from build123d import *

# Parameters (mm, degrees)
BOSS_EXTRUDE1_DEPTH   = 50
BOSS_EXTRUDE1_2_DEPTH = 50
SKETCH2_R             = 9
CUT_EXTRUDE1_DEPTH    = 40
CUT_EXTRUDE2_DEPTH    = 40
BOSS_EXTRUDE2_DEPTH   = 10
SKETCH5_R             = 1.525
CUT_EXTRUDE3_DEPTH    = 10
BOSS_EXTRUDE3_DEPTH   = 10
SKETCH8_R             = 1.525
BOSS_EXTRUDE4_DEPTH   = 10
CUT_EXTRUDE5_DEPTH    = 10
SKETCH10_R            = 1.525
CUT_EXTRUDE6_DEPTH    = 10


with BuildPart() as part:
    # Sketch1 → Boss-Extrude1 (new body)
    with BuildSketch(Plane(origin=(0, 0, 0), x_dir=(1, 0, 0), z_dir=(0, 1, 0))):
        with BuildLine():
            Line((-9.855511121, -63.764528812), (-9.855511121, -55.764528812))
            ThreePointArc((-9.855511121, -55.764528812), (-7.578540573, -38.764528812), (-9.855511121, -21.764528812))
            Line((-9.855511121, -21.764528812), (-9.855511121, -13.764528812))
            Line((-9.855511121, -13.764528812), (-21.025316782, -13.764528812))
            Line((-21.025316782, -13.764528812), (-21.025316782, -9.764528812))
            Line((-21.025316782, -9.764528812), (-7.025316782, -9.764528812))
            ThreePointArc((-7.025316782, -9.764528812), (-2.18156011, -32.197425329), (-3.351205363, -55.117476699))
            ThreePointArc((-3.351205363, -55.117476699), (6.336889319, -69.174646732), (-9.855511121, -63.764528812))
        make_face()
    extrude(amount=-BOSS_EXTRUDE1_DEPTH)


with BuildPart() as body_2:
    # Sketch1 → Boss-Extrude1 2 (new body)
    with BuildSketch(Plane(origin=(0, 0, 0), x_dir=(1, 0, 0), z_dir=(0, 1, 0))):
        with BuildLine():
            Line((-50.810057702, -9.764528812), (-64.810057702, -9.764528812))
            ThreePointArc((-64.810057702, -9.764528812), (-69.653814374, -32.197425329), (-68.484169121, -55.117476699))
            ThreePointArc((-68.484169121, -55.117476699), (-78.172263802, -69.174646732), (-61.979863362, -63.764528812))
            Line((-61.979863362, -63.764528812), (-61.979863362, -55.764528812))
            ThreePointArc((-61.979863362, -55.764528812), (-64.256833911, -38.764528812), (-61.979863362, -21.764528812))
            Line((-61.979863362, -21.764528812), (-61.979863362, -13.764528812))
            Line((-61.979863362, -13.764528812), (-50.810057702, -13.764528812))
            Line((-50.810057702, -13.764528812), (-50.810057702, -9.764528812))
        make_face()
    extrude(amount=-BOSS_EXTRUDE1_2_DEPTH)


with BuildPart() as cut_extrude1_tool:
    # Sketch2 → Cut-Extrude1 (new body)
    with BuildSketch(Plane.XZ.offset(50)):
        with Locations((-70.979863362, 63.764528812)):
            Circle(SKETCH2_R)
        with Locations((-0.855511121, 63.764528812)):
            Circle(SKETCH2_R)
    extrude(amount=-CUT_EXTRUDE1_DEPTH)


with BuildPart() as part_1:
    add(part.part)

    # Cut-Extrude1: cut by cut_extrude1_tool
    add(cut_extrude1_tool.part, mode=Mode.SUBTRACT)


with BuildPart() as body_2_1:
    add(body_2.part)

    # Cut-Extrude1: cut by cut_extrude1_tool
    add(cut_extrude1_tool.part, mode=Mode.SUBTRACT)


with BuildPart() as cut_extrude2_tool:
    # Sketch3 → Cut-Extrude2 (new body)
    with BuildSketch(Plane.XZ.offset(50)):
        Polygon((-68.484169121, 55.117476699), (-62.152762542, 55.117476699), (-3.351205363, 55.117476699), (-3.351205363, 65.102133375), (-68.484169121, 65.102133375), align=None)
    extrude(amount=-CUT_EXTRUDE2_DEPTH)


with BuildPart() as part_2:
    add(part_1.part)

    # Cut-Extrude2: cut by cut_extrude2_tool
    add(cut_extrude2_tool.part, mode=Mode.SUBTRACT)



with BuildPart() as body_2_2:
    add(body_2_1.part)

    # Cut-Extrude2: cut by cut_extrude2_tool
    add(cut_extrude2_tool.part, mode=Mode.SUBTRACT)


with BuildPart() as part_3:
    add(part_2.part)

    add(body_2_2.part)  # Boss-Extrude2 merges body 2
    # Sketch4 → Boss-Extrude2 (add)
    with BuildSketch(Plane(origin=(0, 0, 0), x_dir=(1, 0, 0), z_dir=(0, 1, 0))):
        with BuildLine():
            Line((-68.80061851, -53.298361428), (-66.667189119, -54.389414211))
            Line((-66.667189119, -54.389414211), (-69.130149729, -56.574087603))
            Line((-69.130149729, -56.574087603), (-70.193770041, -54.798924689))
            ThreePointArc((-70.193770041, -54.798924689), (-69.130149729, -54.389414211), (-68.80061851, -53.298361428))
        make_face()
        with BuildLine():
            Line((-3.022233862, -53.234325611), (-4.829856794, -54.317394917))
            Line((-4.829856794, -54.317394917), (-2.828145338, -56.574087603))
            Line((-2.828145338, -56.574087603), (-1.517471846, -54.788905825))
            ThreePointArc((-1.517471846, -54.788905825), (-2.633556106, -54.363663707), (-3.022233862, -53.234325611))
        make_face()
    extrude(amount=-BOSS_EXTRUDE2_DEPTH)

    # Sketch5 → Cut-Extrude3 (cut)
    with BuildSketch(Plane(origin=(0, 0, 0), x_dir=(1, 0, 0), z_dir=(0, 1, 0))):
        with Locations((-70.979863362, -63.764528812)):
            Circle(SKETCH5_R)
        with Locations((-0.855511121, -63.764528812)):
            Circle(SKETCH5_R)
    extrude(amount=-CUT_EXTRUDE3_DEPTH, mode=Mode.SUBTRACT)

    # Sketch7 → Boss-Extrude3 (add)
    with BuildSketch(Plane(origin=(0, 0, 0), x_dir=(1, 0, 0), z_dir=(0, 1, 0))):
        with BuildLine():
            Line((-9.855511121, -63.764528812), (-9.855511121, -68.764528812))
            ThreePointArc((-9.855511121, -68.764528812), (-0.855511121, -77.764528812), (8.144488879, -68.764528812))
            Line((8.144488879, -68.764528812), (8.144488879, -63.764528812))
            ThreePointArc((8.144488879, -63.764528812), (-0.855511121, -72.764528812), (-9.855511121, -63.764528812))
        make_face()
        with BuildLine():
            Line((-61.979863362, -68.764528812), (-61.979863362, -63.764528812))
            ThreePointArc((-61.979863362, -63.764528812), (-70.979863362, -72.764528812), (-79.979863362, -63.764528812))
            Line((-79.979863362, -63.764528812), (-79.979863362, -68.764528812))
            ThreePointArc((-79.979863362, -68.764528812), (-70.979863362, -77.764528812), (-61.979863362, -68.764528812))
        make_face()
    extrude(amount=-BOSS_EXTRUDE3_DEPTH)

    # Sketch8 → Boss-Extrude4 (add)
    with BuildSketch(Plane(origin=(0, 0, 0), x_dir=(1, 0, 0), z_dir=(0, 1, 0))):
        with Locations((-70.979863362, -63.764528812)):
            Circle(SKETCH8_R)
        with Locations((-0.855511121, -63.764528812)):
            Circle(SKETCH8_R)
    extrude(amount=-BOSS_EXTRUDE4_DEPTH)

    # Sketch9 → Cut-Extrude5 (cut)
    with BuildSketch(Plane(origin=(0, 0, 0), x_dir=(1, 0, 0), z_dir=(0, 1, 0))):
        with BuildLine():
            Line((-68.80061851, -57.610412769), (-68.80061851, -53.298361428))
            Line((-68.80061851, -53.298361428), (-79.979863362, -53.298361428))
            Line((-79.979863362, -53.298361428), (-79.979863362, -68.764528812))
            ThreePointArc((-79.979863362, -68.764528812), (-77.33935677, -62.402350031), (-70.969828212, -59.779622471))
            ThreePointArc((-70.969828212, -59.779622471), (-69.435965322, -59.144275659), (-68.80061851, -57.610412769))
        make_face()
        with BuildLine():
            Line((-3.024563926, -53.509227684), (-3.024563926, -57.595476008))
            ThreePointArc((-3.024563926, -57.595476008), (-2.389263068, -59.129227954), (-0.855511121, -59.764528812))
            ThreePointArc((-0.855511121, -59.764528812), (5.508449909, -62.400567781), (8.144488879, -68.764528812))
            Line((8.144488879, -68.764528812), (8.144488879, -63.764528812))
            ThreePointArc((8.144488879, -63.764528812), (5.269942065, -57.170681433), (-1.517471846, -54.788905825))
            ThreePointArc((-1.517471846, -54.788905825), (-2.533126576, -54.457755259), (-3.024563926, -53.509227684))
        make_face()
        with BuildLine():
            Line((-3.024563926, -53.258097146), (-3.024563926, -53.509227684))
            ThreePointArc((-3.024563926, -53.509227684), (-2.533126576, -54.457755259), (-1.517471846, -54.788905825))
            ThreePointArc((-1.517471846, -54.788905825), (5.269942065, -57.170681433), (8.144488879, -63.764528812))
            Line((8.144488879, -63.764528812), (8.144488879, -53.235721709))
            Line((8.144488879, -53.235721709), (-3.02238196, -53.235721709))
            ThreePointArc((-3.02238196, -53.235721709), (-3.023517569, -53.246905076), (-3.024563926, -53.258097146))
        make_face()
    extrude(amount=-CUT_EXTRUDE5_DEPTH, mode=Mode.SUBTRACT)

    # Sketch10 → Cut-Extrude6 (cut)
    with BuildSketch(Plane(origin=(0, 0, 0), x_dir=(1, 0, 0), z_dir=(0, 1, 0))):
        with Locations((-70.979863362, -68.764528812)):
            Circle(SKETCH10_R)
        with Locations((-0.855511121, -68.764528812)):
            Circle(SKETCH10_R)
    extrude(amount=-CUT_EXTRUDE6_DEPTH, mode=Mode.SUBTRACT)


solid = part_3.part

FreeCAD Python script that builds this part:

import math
import FreeCAD as App
import Part
import Sketcher


def add_polygon(sketch, points):
    """Adds a closed chain of lines whose ends are joined by coincident constraints."""
    first, n = sketch.GeometryCount, len(points)
    for a, b in zip(points, points[1:] + points[:1]):
        sketch.addGeometry(Part.LineSegment(App.Vector(*a, 0), App.Vector(*b, 0)), False)
    for i in range(n):
        sketch.addConstraint(Sketcher.Constraint("Coincident", first + i, 2, first + (i + 1) % n, 1))

doc = App.newDocument("Part")
body = doc.addObject("PartDesign::Body", "Body")

# Sketch on XZ plane
sketch1 = body.newObject("Sketcher::SketchObject", "Sketch")
sketch1.AttachmentSupport = (doc.getObject("XZ_Plane"), [""])
sketch1.MapMode = "FlatFace"
sketch1.addGeometry([
    Part.LineSegment(App.Vector(-9.9, 55.8, 0), App.Vector(-9.9, 63.8, 0)),  # 0
    Part.ArcOfCircle(Part.Circle(App.Vector(-0.9, 63.8, 0), App.Vector(0, 0, 1), 9), math.radians(-106), math.radians(180)),  # 1
    Part.ArcOfCircle(Part.Circle(App.Vector(-89.2, 39.2, 0), App.Vector(0, 0, 1), 87.3), math.radians(-20), math.radians(10)),  # 2
    Part.LineSegment(App.Vector(-7, 9.8, 0), App.Vector(-21, 9.8, 0)),  # 3
    Part.LineSegment(App.Vector(-21, 9.8, 0), App.Vector(-21, 13.8, 0)),  # 4
    Part.LineSegment(App.Vector(-21, 13.8, 0), App.Vector(-9.9, 13.8, 0)),  # 5
    Part.LineSegment(App.Vector(-9.9, 13.8, 0), App.Vector(-9.9, 21.8, 0)),  # 6
    Part.ArcOfCircle(Part.Circle(App.Vector(-72.2, 38.8, 0), App.Vector(0, 0, 1), 64.6), math.radians(-15), math.radians(15)),  # 7
], False)
sketch1.addConstraint([
    Sketcher.Constraint("Tangent", 0, 2, 1, 2),
    Sketcher.Constraint("Coincident", 1, 1, 2, 2),
    Sketcher.Constraint("Coincident", 2, 1, 3, 1),
    Sketcher.Constraint("Coincident", 3, 2, 4, 1),
    Sketcher.Constraint("Coincident", 4, 2, 5, 1),
    Sketcher.Constraint("Coincident", 5, 2, 6, 1),
    Sketcher.Constraint("Coincident", 6, 2, 7, 1),
    Sketcher.Constraint("Coincident", 7, 2, 0, 1),
    Sketcher.Constraint("Vertical", 0),
    Sketcher.Constraint("Horizontal", 3),
    Sketcher.Constraint("Vertical", 4),
    Sketcher.Constraint("Horizontal", 5),
    Sketcher.Constraint("Vertical", 6),
    Sketcher.Constraint("Vertical", 0, 2, 5, 2),
    Sketcher.Constraint("Equal", 0, 6),
    Sketcher.Constraint("Radius", 1, 9.0),
    Sketcher.Constraint("Radius", 7, 64.6),
    Sketcher.Constraint("DistanceX", 3, 2, 3, 1, 14.0),
    Sketcher.Constraint("DistanceY", 0, 1, 0, 2, 8.0),
    Sketcher.Constraint("DistanceY", 4, 1, 4, 2, 4.0),
    Sketcher.Constraint("DistanceY", 7, 3, 1, 3, 25.0),
    Sketcher.Constraint("Radius", 2, 87.30116),
    Sketcher.Constraint("DistanceX", 5, 1, 5, 2, 11.169806),
    Sketcher.Constraint("DistanceX", 1, 3, -1, 1, 0.855511),
    Sketcher.Constraint("DistanceY", -1, 1, 1, 3, 63.764529),
    Sketcher.Constraint("DistanceX", 2, 3, -1, 1, 89.19765),
])
pad1 = body.newObject("PartDesign::Pad", "Pad")
pad1.Profile = sketch1
pad1.Length = 50
body2 = doc.addObject("PartDesign::Body", "Body001")

# Sketch on XZ plane
sketch2 = body2.newObject("Sketcher::SketchObject", "Sketch001")
sketch2.AttachmentSupport = (doc.getObject("XZ_Plane001"), [""])
sketch2.MapMode = "FlatFace"
sketch2.addGeometry([
    Part.LineSegment(App.Vector(-50.8, 9.8, 0), App.Vector(-64.8, 9.8, 0)),  # 0
    Part.ArcOfCircle(Part.Circle(App.Vector(17.4, 39.2, 0), App.Vector(0, 0, 1), 87.3), math.radians(170), math.radians(200)),  # 1
    Part.ArcOfCircle(Part.Circle(App.Vector(-71, 63.8, 0), App.Vector(0, 0, 1), 9), math.radians(0), math.radians(286)),  # 2
    Part.LineSegment(App.Vector(-62, 63.8, 0), App.Vector(-62, 55.8, 0)),  # 3
    Part.ArcOfCircle(Part.Circle(App.Vector(0.3, 38.8, 0), App.Vector(0, 0, 1), 64.6), math.radians(165), math.radians(195)),  # 4
    Part.LineSegment(App.Vector(-62, 21.8, 0), App.Vector(-62, 13.8, 0)),  # 5
    Part.LineSegment(App.Vector(-62, 13.8, 0), App.Vector(-50.8, 13.8, 0)),  # 6
    Part.LineSegment(App.Vector(-50.8, 13.8, 0), App.Vector(-50.8, 9.8, 0)),  # 7
], False)
sketch2.addConstraint([
    Sketcher.Constraint("Coincident", 0, 2, 1, 2),
    Sketcher.Constraint("Coincident", 1, 1, 2, 2),
    Sketcher.Constraint("Tangent", 2, 1, 3, 1),
    Sketcher.Constraint("Coincident", 3, 2, 4, 1),
    Sketcher.Constraint("Coincident", 4, 2, 5, 1),
    Sketcher.Constraint("Coincident", 5, 2, 6, 1),
    Sketcher.Constraint("Coincident", 6, 2, 7, 1),
    Sketcher.Constraint("Coincident", 7, 2, 0, 1),
    Sketcher.Constraint("Horizontal", 0),
    Sketcher.Constraint("Vertical", 3),
    Sketcher.Constraint("Vertical", 5),
    Sketcher.Constraint("Horizontal", 6),
    Sketcher.Constraint("Vertical", 7),
    Sketcher.Constraint("Vertical", 3, 2, 4, 2),
    Sketcher.Constraint("Equal", 3, 5),
    Sketcher.Constraint("Radius", 2, 9.0),
    Sketcher.Constraint("Radius", 4, 64.6),
    Sketcher.Constraint("DistanceX", 0, 2, 0, 1, 14.0),
    Sketcher.Constraint("DistanceY", 3, 2, 3, 1, 8.0),
    Sketcher.Constraint("DistanceY", 7, 2, 7, 1, 4.0),
    Sketcher.Constraint("DistanceY", 4, 3, 2, 3, 25.0),
    Sketcher.Constraint("Radius", 1, 87.30116),
    Sketcher.Constraint("DistanceX", 6, 1, 6, 2, 11.169806),
    Sketcher.Constraint("DistanceY", -1, 1, 1, 3, 39.246731),
    Sketcher.Constraint("DistanceY", -1, 1, 2, 3, 63.764529),
    Sketcher.Constraint("DistanceX", 1, 1, -1, 1, 68.484169),
])
pad2 = body2.newObject("PartDesign::Pad", "Pad001")
pad2.Profile = sketch2
pad2.Length = 50
body3 = doc.addObject("PartDesign::Body", "Body002")
body3.AllowCompound = True

# Sketch on XZ plane
sketch3 = body3.newObject("Sketcher::SketchObject", "Sketch002")
sketch3.AttachmentSupport = (doc.getObject("XZ_Plane002"), [""])
sketch3.MapMode = "FlatFace"
sketch3.AttachmentOffset = App.Placement(App.Vector(0, 0, 50), App.Rotation())
sketch3.addGeometry([
    Part.Circle(App.Vector(-71, 64, 0), App.Vector(0, 0, 1), 9),
    Part.Circle(App.Vector(-1, 64, 0), App.Vector(0, 0, 1), 9),
], False)
sketch3.addConstraint([
    Sketcher.Constraint("Equal", 0, 1),
    Sketcher.Constraint("Horizontal", 0, 3, 1, 3),
    Sketcher.Constraint("Diameter", 0, 18.0),
    Sketcher.Constraint("DistanceY", -1, 1, 0, 3, 63.764529),
    Sketcher.Constraint("DistanceX", 1, 3, -1, 1, 0.855511),
    Sketcher.Constraint("DistanceX", 0, 3, -1, 1, 70.979863),
])
pad3 = body3.newObject("PartDesign::Pad", "Pad002")
pad3.Profile = sketch3
pad3.Length = 40
pad3.Reversed = True
doc.recompute()

body4 = doc.addObject("PartDesign::Body", "Body003")
body4.BaseFeature = body3
boolean = body.newObject("PartDesign::Boolean", "Boolean")
boolean.Type = "Cut"
boolean.addObjects([body4])
doc.recompute()

boolean2 = body2.newObject("PartDesign::Boolean", "Boolean001")
boolean2.Type = "Cut"
boolean2.addObjects([body3])
body5 = doc.addObject("PartDesign::Body", "Body004")

# Sketch on XZ plane
sketch4 = body5.newObject("Sketcher::SketchObject", "Sketch003")
sketch4.AttachmentSupport = (doc.getObject("XZ_Plane004"), [""])
sketch4.MapMode = "FlatFace"
sketch4.AttachmentOffset = App.Placement(App.Vector(0, 0, 50), App.Rotation())
add_polygon(sketch4, [(-68, 55), (-3, 55), (-3, 65), (-68, 65)])  # lines 0-3
sketch4.addConstraint([
    Sketcher.Constraint("Horizontal", 0),
    Sketcher.Constraint("Vertical", 1),
    Sketcher.Constraint("Horizontal", 2),
    Sketcher.Constraint("Vertical", 3),
    Sketcher.Constraint("DistanceX", 0, 1, 0, 2, 65.132964),
    Sketcher.Constraint("DistanceY", 1, 1, 1, 2, 9.984657),
    Sketcher.Constraint("DistanceX", 2, 2, -1, 1, 68.484169),
    Sketcher.Constraint("DistanceY", -1, 1, 0, 2, 55.117477),
])
pad4 = body5.newObject("PartDesign::Pad", "Pad003")
pad4.Profile = sketch4
pad4.Length = 40
pad4.Reversed = True
doc.recompute()

body6 = doc.addObject("PartDesign::Body", "Body005")
body6.BaseFeature = body5
boolean3 = body.newObject("PartDesign::Boolean", "Boolean002")
boolean3.Type = "Cut"
boolean3.addObjects([body6])
doc.recompute()

boolean4 = body2.newObject("PartDesign::Boolean", "Boolean003")
boolean4.Type = "Cut"
boolean4.addObjects([body5])
body.AllowCompound = True
doc.recompute()

boolean5 = body.newObject("PartDesign::Boolean", "Boolean004")
boolean5.Type = "Fuse"
boolean5.addObjects([body2])

# Sketch on XZ plane
sketch5 = body.newObject("Sketcher::SketchObject", "Sketch004")
sketch5.AttachmentSupport = (doc.getObject("XZ_Plane"), [""])
sketch5.MapMode = "FlatFace"
sketch5.addGeometry([
    Part.LineSegment(App.Vector(-66.7, 54.4, 0), App.Vector(-68.8, 53.3, 0)),  # 0
    Part.ArcOfCircle(Part.Circle(App.Vector(-70.1, 53.5, 0), App.Vector(0, 0, 1), 1.3), math.radians(-9), math.radians(95)),  # 1
    Part.LineSegment(App.Vector(-70.2, 54.8, 0), App.Vector(-69.1, 56.6, 0)),  # 2
    Part.LineSegment(App.Vector(-69.1, 56.6, 0), App.Vector(-66.7, 54.4, 0)),  # 3
    Part.LineSegment(App.Vector(-3, 53.2, 0), App.Vector(-4.8, 54.3, 0)),  # 4
    Part.LineSegment(App.Vector(-4.8, 54.3, 0), App.Vector(-2.8, 56.6, 0)),  # 5
    Part.LineSegment(App.Vector(-2.8, 56.6, 0), App.Vector(-1.5, 54.8, 0)),  # 6
    Part.ArcOfCircle(Part.Circle(App.Vector(-1.6, 53.4, 0), App.Vector(0, 0, 1), 1.4), math.radians(86), math.radians(186)),  # 7
], False)
sketch5.addConstraint([
    Sketcher.Constraint("Coincident", 0, 2, 1, 1),
    Sketcher.Constraint("Coincident", 1, 2, 2, 1),
    Sketcher.Constraint("Coincident", 2, 2, 3, 1),
    Sketcher.Constraint("Coincident", 3, 2, 0, 1),
    Sketcher.Constraint("Coincident", 4, 2, 5, 1),
    Sketcher.Constraint("Coincident", 5, 2, 6, 1),
    Sketcher.Constraint("Coincident", 6, 2, 7, 1),
    Sketcher.Constraint("Coincident", 7, 2, 4, 1),
    Sketcher.Constraint("Perpendicular", 2, 4),
    Sketcher.Constraint("Perpendicular", 3, 5),
    Sketcher.Constraint("Horizontal", 2, 2, 5, 2),
    Sketcher.Constraint("Radius", 7, 1.40906),
    Sketcher.Constraint("Radius", 1, 1.296793),
    Sketcher.Constraint("DistanceY", 1, 3, 2, 2, 3.067),
    Sketcher.Constraint("DistanceY", 0, 2, 7, 3, 0.085301),
    Sketcher.Constraint("Distance", 0, 2.39623),
    Sketcher.Constraint("Distance", 2, 2.069418),
    Sketcher.Constraint("Distance", 3, 3.29226),
    Sketcher.Constraint("Distance", 4, 2.107259),
    Sketcher.Constraint("Distance", 5, 3.01654),
    Sketcher.Constraint("DistanceX", 7, 3, -1, 1, 1.62111),
    Sketcher.Constraint("DistanceX", 0, 2, -1, 1, 68.800619),
    Sketcher.Constraint("DistanceY", -1, 1, 0, 2, 53.298361),
    Sketcher.Constraint("DistanceX", 1, 2, -1, 1, 70.19377),
    Sketcher.Constraint("DistanceX", 2, 2, -1, 1, 69.13015),
    Sketcher.Constraint("DistanceX", 6, 2, -1, 1, 1.517472),
])
pad5 = body.newObject("PartDesign::Pad", "Pad004")
pad5.Profile = sketch5
pad5.Length = 10

# Sketch on XZ plane
sketch6 = body.newObject("Sketcher::SketchObject", "Sketch005")
sketch6.AttachmentSupport = (doc.getObject("XZ_Plane"), [""])
sketch6.MapMode = "FlatFace"
sketch6.addGeometry([
    Part.Circle(App.Vector(-71, 63.8, 0), App.Vector(0, 0, 1), 1.5),
    Part.Circle(App.Vector(-0.9, 63.8, 0), App.Vector(0, 0, 1), 1.5),
], False)
sketch6.addConstraint([
    Sketcher.Constraint("Equal", 0, 1),
    Sketcher.Constraint("Horizontal", 0, 3, 1, 3),
    Sketcher.Constraint("Diameter", 0, 3.05),
    Sketcher.Constraint("DistanceY", -1, 1, 0, 3, 63.764529),
    Sketcher.Constraint("DistanceX", 1, 3, -1, 1, 0.855511),
    Sketcher.Constraint("DistanceX", 0, 3, -1, 1, 70.979863),
])
pocket1 = body.newObject("PartDesign::Pocket", "Pocket")
pocket1.Profile = sketch6
pocket1.Length = 10
pocket1.Reversed = True

# Sketch on XZ plane
sketch7 = body.newObject("Sketcher::SketchObject", "Sketch006")
sketch7.AttachmentSupport = (doc.getObject("XZ_Plane"), [""])
sketch7.MapMode = "FlatFace"
sketch7.addGeometry([
    Part.LineSegment(App.Vector(-9.9, 63.8, 0), App.Vector(-9.9, 68.8, 0)),  # 0
    Part.ArcOfCircle(Part.Circle(App.Vector(-0.9, 68.8, 0), App.Vector(0, 0, 1), 9), math.radians(0), math.radians(180)),  # 1
    Part.LineSegment(App.Vector(8.1, 68.8, 0), App.Vector(8.1, 63.8, 0)),  # 2
    Part.ArcOfCircle(Part.Circle(App.Vector(-0.9, 63.8, 0), App.Vector(0, 0, 1), 9), math.radians(0), math.radians(180)),  # 3
    Part.LineSegment(App.Vector(-62, 68.8, 0), App.Vector(-62, 63.8, 0)),  # 4
    Part.ArcOfCircle(Part.Circle(App.Vector(-71, 63.8, 0), App.Vector(0, 0, 1), 9), math.radians(0), math.radians(180)),  # 5
    Part.LineSegment(App.Vector(-80, 63.8, 0), App.Vector(-80, 68.8, 0)),  # 6
    Part.ArcOfCircle(Part.Circle(App.Vector(-71, 68.8, 0), App.Vector(0, 0, 1), 9), math.radians(0), math.radians(180)),  # 7
], False)
sketch7.addConstraint([
    Sketcher.Constraint("Tangent", 0, 2, 1, 2),
    Sketcher.Constraint("Tangent", 1, 1, 2, 1),
    Sketcher.Constraint("Tangent", 2, 2, 3, 1),
    Sketcher.Constraint("Tangent", 3, 2, 0, 1),
    Sketcher.Constraint("Tangent", 4, 2, 5, 1),
    Sketcher.Constraint("Tangent", 5, 2, 6, 1),
    Sketcher.Constraint("Tangent", 6, 2, 7, 2),
    Sketcher.Constraint("Tangent", 7, 1, 4, 1),
    Sketcher.Constraint("Vertical", 0),
    Sketcher.Constraint("Vertical", 2),
    Sketcher.Constraint("Vertical", 4),
    Sketcher.Constraint("Vertical", 6),
    Sketcher.Constraint("Equal", 3, 5),
    Sketcher.Constraint("Horizontal", 3, 3, 5, 3),
    Sketcher.Constraint("Horizontal", 1, 3, 7, 3),
    Sketcher.Constraint("Radius", 1, 9.0),
    Sketcher.Constraint("DistanceY", 0, 1, 0, 2, 5.0),
    Sketcher.Constraint("DistanceX", 1, 3, -1, 1, 0.855511),
    Sketcher.Constraint("DistanceY", -1, 1, 1, 3, 68.764529),
    Sketcher.Constraint("DistanceX", 5, 3, -1, 1, 70.979863),
])
pad6 = body.newObject("PartDesign::Pad", "Pad005")
pad6.Profile = sketch7
pad6.Length = 10

# Sketch on XZ plane
sketch8 = body.newObject("Sketcher::SketchObject", "Sketch007")
sketch8.AttachmentSupport = (doc.getObject("XZ_Plane"), [""])
sketch8.MapMode = "FlatFace"
sketch8.addGeometry([
    Part.Circle(App.Vector(-71, 63.8, 0), App.Vector(0, 0, 1), 1.5),
    Part.Circle(App.Vector(-0.9, 63.8, 0), App.Vector(0, 0, 1), 1.5),
], False)
sketch8.addConstraint([
    Sketcher.Constraint("Equal", 0, 1),
    Sketcher.Constraint("Horizontal", 0, 3, 1, 3),
    Sketcher.Constraint("Diameter", 0, 3.05),
    Sketcher.Constraint("DistanceY", -1, 1, 0, 3, 63.764529),
    Sketcher.Constraint("DistanceX", 1, 3, -1, 1, 0.855511),
    Sketcher.Constraint("DistanceX", 0, 3, -1, 1, 70.979863),
])
pad7 = body.newObject("PartDesign::Pad", "Pad006")
pad7.Profile = sketch8
pad7.Length = 10

# Sketch on XZ plane
sketch9 = body.newObject("Sketcher::SketchObject", "Sketch008")
sketch9.AttachmentSupport = (doc.getObject("XZ_Plane"), [""])
sketch9.MapMode = "FlatFace"
sketch9.addGeometry([
    Part.LineSegment(App.Vector(-68.801, 57.61, 0), App.Vector(-68.801, 53.298, 0)),  # 0
    Part.LineSegment(App.Vector(-68.801, 53.298, 0), App.Vector(-79.98, 53.298, 0)),  # 1
    Part.LineSegment(App.Vector(-79.98, 53.298, 0), App.Vector(-79.98, 68.765, 0)),  # 2
    Part.ArcOfCircle(Part.Circle(App.Vector(-70.995, 68.765, 0), App.Vector(0, 0, 1), 8.985), math.radians(180), math.radians(270)),  # 3
    Part.ArcOfCircle(Part.Circle(App.Vector(-70.97, 57.61, 0), App.Vector(0, 0, 1), 2.169), math.radians(0), math.radians(90)),  # 4
    Part.ArcOfCircle(Part.Circle(App.Vector(-0.856, 57.595, 0), App.Vector(0, 0, 1), 2.169), math.radians(90), math.radians(180)),  # 5
    Part.ArcOfCircle(Part.Circle(App.Vector(-0.856, 68.765, 0), App.Vector(0, 0, 1), 9), math.radians(-90), math.radians(0)),  # 6
    Part.LineSegment(App.Vector(8.144, 68.765, 0), App.Vector(8.144, 53.236, 0)),  # 7
    Part.LineSegment(App.Vector(8.144, 53.236, 0), App.Vector(-3.022, 53.236, 0)),  # 8
    Part.ArcOfCircle(Part.Circle(App.Vector(-1.621, 53.384, 0), App.Vector(0, 0, 1), 1.409), math.radians(-174.89), math.radians(-173.97)),  # 9
    Part.LineSegment(App.Vector(-3.025, 53.258, 0), App.Vector(-3.025, 57.595, 0)),  # 10
], False)
sketch9.addConstraint([
    Sketcher.Constraint("Coincident", 0, 2, 1, 1),
    Sketcher.Constraint("Coincident", 1, 2, 2, 1),
    Sketcher.Constraint("Tangent", 2, 2, 3, 1),
    Sketcher.Constraint("Coincident", 3, 2, 4, 2),
    Sketcher.Constraint("Tangent", 4, 1, 0, 1),
    Sketcher.Constraint("Tangent", 5, 1, 6, 1),
    Sketcher.Constraint("Tangent", 6, 2, 7, 1),
    Sketcher.Constraint("Coincident", 7, 2, 8, 1),
    Sketcher.Constraint("Coincident", 8, 2, 9, 2),
    Sketcher.Constraint("Coincident", 9, 1, 10, 1),
    Sketcher.Constraint("Tangent", 10, 2, 5, 2),
    Sketcher.Constraint("Vertical", 0),
    Sketcher.Constraint("Horizontal", 1),
    Sketcher.Constraint("Vertical", 2),
    Sketcher.Constraint("Vertical", 7),
    Sketcher.Constraint("Horizontal", 8),
    Sketcher.Constraint("Vertical", 10),
    Sketcher.Constraint("Horizontal", 3, 3, 6, 3),
    Sketcher.Constraint("Vertical", 5, 3, 6, 3),
    Sketcher.Constraint("Vertical", 4, 3, 3, 2),
    Sketcher.Constraint("Radius", 6, 9.0),
    Sketcher.Constraint("Radius", 3, 8.984941),
    Sketcher.Constraint("Radius", 4, 2.16921),
    Sketcher.Constraint("Radius", 5, 2.169053),
    Sketcher.Constraint("Radius", 9, 1.409053),
    Sketcher.Constraint("DistanceX", 8, 2, 8, 1, 11.166871),
    Sketcher.Constraint("DistanceY", 0, 2, 0, 1, 4.312051),
    Sketcher.Constraint("DistanceY", 10, 1, 10, 2, 4.337379),
    Sketcher.Constraint("DistanceY", 0, 2, 9, 3, 0.0853),
    Sketcher.Constraint("DistanceX", 1, 2, 1, 1, 11.179245),
    Sketcher.Constraint("DistanceX", 3, 3, -1, 1, 70.994922),
    Sketcher.Constraint("DistanceY", -1, 1, 3, 3, 68.764529),
    Sketcher.Constraint("DistanceX", 5, 3, -1, 1, 0.855511),
])
pocket2 = body.newObject("PartDesign::Pocket", "Pocket001")
pocket2.Profile = sketch9
pocket2.Length = 10
pocket2.Reversed = True

# Sketch on XZ plane
sketch10 = body.newObject("Sketcher::SketchObject", "Sketch009")
sketch10.AttachmentSupport = (doc.getObject("XZ_Plane"), [""])
sketch10.MapMode = "FlatFace"
sketch10.addGeometry([
    Part.Circle(App.Vector(-71, 68.8, 0), App.Vector(0, 0, 1), 1.5),
    Part.Circle(App.Vector(-0.9, 68.8, 0), App.Vector(0, 0, 1), 1.5),
], False)
sketch10.addConstraint([
    Sketcher.Constraint("Equal", 0, 1),
    Sketcher.Constraint("Horizontal", 0, 3, 1, 3),
    Sketcher.Constraint("Diameter", 0, 3.05),
    Sketcher.Constraint("DistanceY", -1, 1, 0, 3, 68.764529),
    Sketcher.Constraint("DistanceX", 1, 3, -1, 1, 0.855511),
    Sketcher.Constraint("DistanceX", 0, 3, -1, 1, 70.979863),
])
pocket3 = body.newObject("PartDesign::Pocket", "Pocket002")
pocket3.Profile = sketch10
pocket3.Length = 10
pocket3.Reversed = True

doc.recompute()
